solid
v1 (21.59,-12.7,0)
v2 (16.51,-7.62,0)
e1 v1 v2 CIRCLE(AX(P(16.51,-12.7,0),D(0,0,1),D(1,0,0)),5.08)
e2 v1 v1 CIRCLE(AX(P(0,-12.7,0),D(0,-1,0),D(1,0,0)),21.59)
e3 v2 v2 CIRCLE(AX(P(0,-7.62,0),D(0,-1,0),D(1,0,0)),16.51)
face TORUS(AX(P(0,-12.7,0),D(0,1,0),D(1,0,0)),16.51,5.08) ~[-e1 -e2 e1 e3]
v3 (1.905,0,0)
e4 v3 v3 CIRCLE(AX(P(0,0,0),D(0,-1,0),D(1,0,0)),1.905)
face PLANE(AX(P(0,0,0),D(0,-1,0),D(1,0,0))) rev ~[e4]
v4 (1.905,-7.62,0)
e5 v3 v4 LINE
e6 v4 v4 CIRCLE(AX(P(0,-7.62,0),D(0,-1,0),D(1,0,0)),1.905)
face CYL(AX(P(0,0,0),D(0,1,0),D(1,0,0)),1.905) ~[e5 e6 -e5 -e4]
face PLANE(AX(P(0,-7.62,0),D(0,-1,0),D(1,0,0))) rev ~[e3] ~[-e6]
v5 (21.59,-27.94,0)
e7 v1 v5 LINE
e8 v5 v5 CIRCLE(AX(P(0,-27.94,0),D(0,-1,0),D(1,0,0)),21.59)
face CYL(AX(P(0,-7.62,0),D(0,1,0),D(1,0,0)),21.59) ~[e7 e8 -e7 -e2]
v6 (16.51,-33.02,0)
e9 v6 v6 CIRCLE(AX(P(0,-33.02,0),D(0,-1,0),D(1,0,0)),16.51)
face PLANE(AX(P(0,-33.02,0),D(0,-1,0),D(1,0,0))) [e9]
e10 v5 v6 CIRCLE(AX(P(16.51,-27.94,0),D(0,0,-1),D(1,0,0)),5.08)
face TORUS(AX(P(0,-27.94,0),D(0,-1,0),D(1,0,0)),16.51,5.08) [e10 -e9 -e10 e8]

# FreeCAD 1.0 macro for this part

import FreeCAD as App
import Part
import Sketcher
Q = App.Units.Quantity


def edges_at(feature, points):
    """Names of the edges that pass closest to the given points."""
    edges = feature.Shape.Edges
    near = lambda p: min(range(len(edges)), key=lambda i: edges[i].distToShape(Part.Vertex(*p))[0])
    return sorted({f"Edge{near(p) + 1}" for p in points})

doc = App.newDocument("Part")
body = doc.addObject("PartDesign::Body", "Body")

# Sketch on XZ plane
sketch1 = body.newObject("Sketcher::SketchObject", "Sketch")
sketch1.AttachmentSupport = (doc.getObject("XZ_Plane"), [""])
sketch1.MapMode = "FlatFace"
sketch1.addGeometry(Part.Circle(App.Vector(0, 0, 0), App.Vector(0, 0, 1), 1.9), False)
sketch1.addConstraint([
    Sketcher.Constraint("Coincident", 0, 3, -1, 1),
    Sketcher.Constraint("Diameter", 0, Q("0.15 in")),
])
pad1 = body.newObject("PartDesign::Pad", "Pad")
pad1.Profile = sketch1
pad1.Length = Q("0.3 in")

# Sketch on XZ plane
sketch2 = body.newObject("Sketcher::SketchObject", "Sketch001")
sketch2.AttachmentSupport = (doc.getObject("XZ_Plane"), [""])
sketch2.MapMode = "FlatFace"
sketch2.AttachmentOffset = App.Placement(App.Vector(0, 0, 0.3 * 25.4), App.Rotation())
sketch2.addGeometry(Part.Circle(App.Vector(0, 0, 0), App.Vector(0, 0, 1), 22), False)
sketch2.addConstraint([
    Sketcher.Constraint("Coincident", 0, 3, -1, 1),
    Sketcher.Constraint("Diameter", 0, Q("1.7 in")),
])
pad2 = body.newObject("PartDesign::Pad", "Pad001")
pad2.Profile = sketch2
pad2.Length = Q("1 in")
doc.recompute()

fillet = body.newObject("PartDesign::Fillet", "Fillet")
fillet.Base = (pad2, edges_at(pad2, [(-21.59, -33.02, 0), (-21.59, -7.62, 0)]))
fillet.Radius = Q("0.2 in")

doc.recompute()
